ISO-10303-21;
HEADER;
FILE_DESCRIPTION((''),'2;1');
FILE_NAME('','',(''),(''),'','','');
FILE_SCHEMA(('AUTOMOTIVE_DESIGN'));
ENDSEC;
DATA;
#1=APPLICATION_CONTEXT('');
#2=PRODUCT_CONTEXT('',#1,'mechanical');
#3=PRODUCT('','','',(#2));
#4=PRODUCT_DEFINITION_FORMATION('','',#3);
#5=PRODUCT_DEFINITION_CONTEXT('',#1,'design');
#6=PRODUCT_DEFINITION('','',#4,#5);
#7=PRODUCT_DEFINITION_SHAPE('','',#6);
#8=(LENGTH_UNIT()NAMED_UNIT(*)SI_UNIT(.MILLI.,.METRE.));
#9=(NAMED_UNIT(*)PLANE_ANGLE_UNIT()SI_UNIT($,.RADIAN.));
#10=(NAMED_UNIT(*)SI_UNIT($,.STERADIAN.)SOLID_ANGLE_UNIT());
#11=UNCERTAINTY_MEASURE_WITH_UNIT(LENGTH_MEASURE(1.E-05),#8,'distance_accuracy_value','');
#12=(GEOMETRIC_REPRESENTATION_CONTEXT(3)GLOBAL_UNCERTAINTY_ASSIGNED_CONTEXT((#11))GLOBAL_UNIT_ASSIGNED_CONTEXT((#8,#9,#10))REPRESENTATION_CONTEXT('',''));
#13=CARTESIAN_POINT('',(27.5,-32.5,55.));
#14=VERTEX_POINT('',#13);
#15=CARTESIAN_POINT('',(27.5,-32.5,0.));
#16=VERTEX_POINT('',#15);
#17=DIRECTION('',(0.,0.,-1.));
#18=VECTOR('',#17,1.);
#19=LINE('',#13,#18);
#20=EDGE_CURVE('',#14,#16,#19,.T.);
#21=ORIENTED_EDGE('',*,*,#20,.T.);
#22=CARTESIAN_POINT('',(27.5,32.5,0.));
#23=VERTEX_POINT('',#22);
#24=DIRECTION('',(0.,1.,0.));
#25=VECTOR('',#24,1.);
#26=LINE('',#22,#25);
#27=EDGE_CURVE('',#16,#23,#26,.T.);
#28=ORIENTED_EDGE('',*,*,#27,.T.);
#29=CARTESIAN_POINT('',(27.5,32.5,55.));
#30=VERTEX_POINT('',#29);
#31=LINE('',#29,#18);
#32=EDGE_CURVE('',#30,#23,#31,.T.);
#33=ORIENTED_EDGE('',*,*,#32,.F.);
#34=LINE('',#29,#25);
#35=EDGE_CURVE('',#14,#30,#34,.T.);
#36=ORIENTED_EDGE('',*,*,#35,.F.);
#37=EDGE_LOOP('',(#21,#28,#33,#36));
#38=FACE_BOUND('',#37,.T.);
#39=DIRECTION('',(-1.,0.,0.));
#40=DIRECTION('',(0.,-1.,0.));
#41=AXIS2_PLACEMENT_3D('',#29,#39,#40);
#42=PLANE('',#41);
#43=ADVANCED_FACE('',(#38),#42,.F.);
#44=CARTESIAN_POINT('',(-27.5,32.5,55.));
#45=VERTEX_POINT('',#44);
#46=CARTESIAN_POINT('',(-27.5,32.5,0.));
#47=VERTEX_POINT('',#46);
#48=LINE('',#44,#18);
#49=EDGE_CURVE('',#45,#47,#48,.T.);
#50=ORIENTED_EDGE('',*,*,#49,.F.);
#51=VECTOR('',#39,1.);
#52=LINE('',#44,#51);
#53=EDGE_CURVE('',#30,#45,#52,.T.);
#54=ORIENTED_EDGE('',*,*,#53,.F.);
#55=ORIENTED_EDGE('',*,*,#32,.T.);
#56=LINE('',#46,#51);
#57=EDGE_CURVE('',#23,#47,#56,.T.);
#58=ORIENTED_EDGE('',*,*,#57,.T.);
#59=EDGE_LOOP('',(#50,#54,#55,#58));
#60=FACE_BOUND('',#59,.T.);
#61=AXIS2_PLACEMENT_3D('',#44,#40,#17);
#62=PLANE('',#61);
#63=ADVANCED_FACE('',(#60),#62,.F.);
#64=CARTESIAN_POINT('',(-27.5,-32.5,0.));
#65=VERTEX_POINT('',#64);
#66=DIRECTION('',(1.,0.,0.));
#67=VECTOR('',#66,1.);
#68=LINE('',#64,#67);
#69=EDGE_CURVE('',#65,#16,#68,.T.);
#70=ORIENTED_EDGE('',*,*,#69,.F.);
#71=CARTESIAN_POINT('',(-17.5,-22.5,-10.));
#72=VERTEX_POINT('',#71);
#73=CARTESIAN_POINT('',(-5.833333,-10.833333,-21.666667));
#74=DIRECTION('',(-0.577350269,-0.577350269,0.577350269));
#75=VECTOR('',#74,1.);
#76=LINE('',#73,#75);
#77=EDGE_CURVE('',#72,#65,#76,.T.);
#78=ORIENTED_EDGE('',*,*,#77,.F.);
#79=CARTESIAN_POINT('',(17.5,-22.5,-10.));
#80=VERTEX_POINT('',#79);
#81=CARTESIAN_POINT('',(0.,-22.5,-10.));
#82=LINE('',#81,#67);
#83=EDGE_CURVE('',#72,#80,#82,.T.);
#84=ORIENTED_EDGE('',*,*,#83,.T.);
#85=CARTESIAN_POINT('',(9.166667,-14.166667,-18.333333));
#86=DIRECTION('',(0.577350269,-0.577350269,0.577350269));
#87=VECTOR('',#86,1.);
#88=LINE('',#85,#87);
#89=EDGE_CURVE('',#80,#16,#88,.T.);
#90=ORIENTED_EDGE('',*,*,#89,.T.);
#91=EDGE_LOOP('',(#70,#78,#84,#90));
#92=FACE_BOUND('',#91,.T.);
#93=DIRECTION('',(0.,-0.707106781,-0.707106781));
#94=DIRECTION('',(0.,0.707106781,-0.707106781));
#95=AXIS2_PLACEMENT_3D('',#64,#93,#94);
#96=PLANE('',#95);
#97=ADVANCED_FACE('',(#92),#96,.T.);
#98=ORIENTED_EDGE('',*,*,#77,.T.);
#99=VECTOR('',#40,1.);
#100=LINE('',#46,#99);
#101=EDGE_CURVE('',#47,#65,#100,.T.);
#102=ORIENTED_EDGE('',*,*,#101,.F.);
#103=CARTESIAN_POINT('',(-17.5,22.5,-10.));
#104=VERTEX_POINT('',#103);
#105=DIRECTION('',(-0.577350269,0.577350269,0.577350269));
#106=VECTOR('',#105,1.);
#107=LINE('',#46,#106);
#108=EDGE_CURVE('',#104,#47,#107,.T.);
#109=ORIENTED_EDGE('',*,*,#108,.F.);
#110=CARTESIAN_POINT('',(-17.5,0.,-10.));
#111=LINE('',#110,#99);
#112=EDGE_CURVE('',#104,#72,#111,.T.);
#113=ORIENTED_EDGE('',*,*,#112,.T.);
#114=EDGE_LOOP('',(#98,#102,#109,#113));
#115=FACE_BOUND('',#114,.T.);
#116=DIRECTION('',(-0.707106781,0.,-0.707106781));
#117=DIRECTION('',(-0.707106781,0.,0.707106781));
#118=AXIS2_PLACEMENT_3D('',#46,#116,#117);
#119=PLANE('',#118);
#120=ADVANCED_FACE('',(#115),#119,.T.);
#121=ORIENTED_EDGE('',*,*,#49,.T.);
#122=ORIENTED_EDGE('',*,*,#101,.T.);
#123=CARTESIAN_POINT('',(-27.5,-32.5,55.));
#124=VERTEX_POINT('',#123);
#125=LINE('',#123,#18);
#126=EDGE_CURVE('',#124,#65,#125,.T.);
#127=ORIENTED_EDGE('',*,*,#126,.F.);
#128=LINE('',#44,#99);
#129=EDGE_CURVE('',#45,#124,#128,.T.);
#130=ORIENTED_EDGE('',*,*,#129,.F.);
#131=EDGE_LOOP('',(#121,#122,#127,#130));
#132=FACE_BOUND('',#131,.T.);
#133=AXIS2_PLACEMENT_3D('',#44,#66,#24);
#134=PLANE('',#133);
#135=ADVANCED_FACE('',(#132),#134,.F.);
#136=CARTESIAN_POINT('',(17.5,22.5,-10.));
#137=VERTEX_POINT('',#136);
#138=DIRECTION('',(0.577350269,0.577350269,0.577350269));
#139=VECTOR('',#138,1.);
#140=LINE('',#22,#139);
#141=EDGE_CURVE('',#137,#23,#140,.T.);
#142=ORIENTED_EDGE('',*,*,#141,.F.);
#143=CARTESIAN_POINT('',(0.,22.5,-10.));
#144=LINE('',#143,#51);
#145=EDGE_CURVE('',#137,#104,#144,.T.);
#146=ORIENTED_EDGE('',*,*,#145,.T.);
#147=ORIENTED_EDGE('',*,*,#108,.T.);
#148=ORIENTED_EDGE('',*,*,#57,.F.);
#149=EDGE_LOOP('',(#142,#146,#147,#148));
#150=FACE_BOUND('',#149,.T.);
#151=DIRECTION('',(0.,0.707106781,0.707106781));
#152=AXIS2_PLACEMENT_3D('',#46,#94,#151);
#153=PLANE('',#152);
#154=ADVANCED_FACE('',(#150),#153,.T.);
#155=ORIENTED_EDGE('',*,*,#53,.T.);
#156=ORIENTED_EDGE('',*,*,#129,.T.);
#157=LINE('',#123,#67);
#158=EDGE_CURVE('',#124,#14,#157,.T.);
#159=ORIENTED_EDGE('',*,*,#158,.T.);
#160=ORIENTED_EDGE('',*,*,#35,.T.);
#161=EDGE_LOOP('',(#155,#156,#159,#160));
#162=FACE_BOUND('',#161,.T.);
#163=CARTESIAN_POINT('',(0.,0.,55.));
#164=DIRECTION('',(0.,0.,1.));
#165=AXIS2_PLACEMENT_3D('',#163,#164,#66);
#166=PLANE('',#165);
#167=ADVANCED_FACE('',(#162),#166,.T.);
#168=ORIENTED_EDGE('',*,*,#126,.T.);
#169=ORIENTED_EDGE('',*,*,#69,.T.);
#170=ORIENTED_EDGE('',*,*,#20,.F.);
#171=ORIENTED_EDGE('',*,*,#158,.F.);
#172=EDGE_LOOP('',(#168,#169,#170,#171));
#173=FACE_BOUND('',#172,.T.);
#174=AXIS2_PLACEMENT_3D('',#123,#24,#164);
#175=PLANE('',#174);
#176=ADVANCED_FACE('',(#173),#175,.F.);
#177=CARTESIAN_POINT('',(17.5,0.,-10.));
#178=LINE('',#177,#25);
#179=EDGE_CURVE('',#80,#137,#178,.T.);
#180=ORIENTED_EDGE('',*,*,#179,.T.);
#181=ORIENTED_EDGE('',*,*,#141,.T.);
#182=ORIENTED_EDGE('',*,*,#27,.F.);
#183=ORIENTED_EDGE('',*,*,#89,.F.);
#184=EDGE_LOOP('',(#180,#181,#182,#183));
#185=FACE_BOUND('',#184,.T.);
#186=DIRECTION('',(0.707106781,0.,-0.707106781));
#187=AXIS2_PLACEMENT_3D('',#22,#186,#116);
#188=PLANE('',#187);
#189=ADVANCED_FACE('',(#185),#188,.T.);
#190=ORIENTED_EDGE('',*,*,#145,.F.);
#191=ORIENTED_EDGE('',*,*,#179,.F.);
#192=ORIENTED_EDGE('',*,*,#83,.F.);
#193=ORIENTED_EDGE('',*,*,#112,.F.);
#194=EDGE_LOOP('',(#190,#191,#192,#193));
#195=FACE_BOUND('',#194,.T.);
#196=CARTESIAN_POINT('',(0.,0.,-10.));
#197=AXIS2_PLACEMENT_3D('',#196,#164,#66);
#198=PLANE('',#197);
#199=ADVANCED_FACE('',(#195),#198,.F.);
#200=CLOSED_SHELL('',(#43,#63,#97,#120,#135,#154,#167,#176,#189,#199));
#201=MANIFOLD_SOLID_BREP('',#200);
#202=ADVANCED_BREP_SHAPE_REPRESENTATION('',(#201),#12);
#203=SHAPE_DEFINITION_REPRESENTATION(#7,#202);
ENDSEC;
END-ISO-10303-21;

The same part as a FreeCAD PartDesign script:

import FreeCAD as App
import Part
import Sketcher

V = App.Vector
Q = App.Units.Quantity


def add_polygon(sketch, points):
    """Adds a closed chain of lines whose ends are joined by coincident constraints."""
    first, n = sketch.GeometryCount, len(points)
    for a, b in zip(points, points[1:] + points[:1]):
        sketch.addGeometry(Part.LineSegment(App.Vector(*a, 0), App.Vector(*b, 0)), False)
    for i in range(n):
        sketch.addConstraint(Sketcher.Constraint("Coincident", first + i, 2, first + (i + 1) % n, 1))

doc = App.newDocument("Part")
body = doc.addObject("PartDesign::Body", "Body")

# Sketch on XY plane
sketch1 = body.newObject("Sketcher::SketchObject", "Sketch")
sketch1.AttachmentSupport = (doc.getObject("XY_Plane"), [""])
sketch1.MapMode = "FlatFace"
add_polygon(sketch1, [(-28, 32), (-28, -32), (28, -32), (28, 32)])  # lines 0-3
sketch1.addConstraint([
    Sketcher.Constraint("Vertical", 0),
    Sketcher.Constraint("Horizontal", 1),
    Sketcher.Constraint("Vertical", 2),
    Sketcher.Constraint("Horizontal", 3),
    Sketcher.Constraint("Symmetric", 0, 2, 2, 2, -1, 1),
    Sketcher.Constraint("DistanceX", 1, 1, 1, 2, Q("55 mm")),
    Sketcher.Constraint("DistanceY", 0, 2, 0, 1, Q("65 mm")),
])
pad1 = body.newObject("PartDesign::Pad", "Pad")
pad1.Profile = sketch1
pad1.Length = 55

# Sketch on XY plane
sketch2 = body.newObject("Sketcher::SketchObject", "Sketch001")
sketch2.AttachmentSupport = (doc.getObject("XY_Plane"), [""])
sketch2.MapMode = "FlatFace"
add_polygon(sketch2, [(-28, 32), (-28, -32), (28, -32), (28, 32)])  # lines 0-3
sketch2.addConstraint([
    Sketcher.Constraint("Vertical", 0),
    Sketcher.Constraint("Horizontal", 1),
    Sketcher.Constraint("Vertical", 2),
    Sketcher.Constraint("Horizontal", 3),
    Sketcher.Constraint("Symmetric", 0, 2, 2, 2, -1, 1),
    Sketcher.Constraint("DistanceX", 1, 1, 1, 2, Q("55 mm")),
    Sketcher.Constraint("DistanceY", 0, 2, 0, 1, Q("65 mm")),
])
pad2 = body.newObject("PartDesign::Pad", "Pad001")
pad2.Profile = sketch2
pad2.Length = 10
pad2.Reversed = True
pad2.TaperAngle = -45

doc.recompute()
